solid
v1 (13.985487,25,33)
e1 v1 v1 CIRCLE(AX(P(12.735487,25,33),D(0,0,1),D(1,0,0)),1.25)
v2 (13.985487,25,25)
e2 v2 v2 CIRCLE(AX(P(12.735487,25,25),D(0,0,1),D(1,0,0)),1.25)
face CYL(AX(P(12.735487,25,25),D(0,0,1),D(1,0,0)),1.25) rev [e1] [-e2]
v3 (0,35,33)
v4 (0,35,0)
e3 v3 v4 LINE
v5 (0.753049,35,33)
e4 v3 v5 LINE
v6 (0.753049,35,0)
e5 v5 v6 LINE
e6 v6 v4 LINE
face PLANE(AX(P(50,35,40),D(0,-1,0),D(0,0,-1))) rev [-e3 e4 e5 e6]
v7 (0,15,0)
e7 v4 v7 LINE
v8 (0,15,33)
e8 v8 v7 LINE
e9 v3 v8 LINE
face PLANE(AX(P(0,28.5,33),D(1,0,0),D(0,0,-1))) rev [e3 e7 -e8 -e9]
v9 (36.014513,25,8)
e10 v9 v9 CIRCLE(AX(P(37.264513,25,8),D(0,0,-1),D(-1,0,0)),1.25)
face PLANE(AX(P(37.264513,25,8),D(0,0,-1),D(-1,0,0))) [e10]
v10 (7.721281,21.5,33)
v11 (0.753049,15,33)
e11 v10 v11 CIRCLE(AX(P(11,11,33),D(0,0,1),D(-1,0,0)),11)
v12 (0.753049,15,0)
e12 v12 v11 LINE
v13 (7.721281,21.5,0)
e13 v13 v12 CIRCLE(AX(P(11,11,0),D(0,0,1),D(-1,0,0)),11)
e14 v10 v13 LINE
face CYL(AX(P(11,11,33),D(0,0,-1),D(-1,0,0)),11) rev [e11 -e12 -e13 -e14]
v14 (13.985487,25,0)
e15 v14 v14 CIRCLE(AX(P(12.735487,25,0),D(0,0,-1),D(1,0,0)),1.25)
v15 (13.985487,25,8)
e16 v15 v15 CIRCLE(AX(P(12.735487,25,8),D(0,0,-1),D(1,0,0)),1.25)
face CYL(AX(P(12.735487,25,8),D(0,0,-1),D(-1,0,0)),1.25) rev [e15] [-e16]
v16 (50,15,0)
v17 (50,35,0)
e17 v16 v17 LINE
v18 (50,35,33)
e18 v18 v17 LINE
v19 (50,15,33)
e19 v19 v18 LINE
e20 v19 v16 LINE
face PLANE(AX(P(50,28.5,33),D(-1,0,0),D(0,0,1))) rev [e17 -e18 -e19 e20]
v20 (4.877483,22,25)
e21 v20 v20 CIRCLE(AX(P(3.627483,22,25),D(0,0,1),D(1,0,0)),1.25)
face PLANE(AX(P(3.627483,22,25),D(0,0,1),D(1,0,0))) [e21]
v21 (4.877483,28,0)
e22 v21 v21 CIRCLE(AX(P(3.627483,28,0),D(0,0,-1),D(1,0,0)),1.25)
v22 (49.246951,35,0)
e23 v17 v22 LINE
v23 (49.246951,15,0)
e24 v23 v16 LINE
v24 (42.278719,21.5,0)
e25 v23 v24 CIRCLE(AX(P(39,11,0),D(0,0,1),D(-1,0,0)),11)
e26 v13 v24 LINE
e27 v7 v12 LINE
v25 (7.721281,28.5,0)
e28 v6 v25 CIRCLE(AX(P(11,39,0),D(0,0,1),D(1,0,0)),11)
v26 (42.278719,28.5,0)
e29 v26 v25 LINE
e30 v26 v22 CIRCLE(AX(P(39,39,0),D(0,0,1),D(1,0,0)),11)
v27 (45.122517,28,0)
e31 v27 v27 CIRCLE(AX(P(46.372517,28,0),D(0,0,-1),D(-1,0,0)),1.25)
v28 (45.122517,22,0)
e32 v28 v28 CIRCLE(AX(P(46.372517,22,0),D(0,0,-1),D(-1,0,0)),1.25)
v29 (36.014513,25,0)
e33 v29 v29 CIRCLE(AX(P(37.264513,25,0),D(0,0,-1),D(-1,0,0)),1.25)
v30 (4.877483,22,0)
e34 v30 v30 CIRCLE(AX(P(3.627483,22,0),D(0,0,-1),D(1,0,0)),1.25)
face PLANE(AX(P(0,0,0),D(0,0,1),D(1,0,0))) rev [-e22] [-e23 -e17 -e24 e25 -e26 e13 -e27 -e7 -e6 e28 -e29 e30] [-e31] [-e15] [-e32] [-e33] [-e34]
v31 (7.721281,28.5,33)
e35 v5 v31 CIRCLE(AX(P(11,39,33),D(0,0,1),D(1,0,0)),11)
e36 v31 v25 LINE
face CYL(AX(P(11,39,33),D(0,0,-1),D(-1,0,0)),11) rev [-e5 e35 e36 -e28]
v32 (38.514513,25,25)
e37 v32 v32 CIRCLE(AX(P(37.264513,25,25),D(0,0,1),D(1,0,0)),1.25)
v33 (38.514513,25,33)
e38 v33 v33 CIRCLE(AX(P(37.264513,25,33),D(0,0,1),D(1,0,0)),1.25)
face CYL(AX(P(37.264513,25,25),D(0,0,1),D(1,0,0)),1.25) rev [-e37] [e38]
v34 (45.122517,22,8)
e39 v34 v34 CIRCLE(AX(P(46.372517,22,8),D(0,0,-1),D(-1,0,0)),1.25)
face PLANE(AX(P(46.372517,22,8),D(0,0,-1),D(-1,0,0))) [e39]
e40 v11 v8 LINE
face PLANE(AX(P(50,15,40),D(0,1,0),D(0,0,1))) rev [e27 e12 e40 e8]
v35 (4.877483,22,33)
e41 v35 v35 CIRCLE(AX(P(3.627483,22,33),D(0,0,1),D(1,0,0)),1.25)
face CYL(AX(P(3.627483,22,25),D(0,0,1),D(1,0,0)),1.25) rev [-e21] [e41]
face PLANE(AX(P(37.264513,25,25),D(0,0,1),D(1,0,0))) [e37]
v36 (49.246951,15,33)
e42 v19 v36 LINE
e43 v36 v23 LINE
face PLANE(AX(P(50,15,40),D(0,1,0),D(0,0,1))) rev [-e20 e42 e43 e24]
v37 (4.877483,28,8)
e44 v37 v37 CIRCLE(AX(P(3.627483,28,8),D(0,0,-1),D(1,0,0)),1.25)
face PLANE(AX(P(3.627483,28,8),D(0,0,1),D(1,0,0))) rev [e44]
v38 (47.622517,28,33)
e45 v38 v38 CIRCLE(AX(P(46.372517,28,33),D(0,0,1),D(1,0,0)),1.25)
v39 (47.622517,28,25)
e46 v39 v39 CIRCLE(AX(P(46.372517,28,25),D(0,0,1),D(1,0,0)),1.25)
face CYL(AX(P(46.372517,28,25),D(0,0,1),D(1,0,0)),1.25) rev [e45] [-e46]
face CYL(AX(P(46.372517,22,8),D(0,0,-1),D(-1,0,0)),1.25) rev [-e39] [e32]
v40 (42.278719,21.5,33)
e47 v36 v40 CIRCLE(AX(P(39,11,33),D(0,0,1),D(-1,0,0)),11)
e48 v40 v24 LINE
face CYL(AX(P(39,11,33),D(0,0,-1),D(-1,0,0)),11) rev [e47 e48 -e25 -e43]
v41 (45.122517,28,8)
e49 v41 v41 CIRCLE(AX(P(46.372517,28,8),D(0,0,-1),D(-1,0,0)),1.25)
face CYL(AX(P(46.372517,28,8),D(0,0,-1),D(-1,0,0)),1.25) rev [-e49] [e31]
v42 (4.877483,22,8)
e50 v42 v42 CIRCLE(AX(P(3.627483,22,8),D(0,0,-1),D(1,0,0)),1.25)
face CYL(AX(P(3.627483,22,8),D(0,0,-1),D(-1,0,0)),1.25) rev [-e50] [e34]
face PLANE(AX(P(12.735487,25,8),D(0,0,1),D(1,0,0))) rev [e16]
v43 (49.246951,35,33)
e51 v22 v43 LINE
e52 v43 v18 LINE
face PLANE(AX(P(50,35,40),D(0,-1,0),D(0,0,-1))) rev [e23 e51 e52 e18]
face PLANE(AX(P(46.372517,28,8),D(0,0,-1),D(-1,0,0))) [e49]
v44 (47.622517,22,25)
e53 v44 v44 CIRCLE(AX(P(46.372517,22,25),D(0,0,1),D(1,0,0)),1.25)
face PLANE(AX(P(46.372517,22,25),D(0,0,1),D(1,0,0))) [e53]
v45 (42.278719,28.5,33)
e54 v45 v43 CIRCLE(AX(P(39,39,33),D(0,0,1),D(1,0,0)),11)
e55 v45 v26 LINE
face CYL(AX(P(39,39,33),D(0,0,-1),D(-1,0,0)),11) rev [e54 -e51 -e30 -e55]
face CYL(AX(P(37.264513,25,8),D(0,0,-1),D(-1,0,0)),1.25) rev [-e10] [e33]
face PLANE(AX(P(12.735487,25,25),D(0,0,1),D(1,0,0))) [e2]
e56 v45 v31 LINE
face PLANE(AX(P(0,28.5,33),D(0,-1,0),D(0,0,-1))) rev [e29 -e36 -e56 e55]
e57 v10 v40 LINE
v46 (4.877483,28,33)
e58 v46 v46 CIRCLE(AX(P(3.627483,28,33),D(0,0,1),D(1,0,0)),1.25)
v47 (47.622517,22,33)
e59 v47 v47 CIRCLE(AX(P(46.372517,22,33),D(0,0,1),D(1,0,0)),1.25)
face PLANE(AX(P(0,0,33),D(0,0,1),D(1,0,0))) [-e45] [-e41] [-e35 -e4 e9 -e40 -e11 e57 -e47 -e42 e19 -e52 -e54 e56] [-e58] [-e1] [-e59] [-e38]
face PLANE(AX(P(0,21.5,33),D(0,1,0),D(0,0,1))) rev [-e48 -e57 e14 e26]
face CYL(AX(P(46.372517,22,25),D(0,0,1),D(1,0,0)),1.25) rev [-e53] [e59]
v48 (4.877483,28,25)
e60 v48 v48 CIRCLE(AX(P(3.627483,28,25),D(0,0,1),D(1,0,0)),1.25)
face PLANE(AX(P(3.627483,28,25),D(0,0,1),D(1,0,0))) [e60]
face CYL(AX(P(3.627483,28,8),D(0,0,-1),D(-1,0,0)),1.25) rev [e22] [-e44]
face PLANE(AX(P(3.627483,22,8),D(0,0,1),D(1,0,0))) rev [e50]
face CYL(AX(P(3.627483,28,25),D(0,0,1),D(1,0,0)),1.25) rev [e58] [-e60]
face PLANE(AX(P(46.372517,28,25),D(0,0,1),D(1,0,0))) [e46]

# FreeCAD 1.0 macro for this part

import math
import FreeCAD as App
import Part
import Sketcher

V = App.Vector
Q = App.Units.Quantity


def add_polygon(sketch, points):
    """Adds a closed chain of lines whose ends are joined by coincident constraints."""
    first, n = sketch.GeometryCount, len(points)
    for a, b in zip(points, points[1:] + points[:1]):
        sketch.addGeometry(Part.LineSegment(App.Vector(*a, 0), App.Vector(*b, 0)), False)
    for i in range(n):
        sketch.addConstraint(Sketcher.Constraint("Coincident", first + i, 2, first + (i + 1) % n, 1))

doc = App.newDocument("Part")
body = doc.addObject("PartDesign::Body", "Body")

# Sketch on XY plane
sketch1 = body.newObject("Sketcher::SketchObject", "Sketch")
sketch1.AttachmentSupport = (doc.getObject("XY_Plane"), [""])
sketch1.MapMode = "FlatFace"
add_polygon(sketch1, [(0, 28), (0, 22), (50, 22), (50, 28)])  # lines 0-3
sketch1.addConstraint(Sketcher.Constraint("Vertical", 0))
sketch1.addConstraint(Sketcher.Constraint("Horizontal", 1))
sketch1.addConstraint(Sketcher.Constraint("Vertical", 2))
sketch1.addConstraint(Sketcher.Constraint("Horizontal", 3))
sketch1.addConstraint(Sketcher.Constraint("PointOnObject", 0, 2, -2))
sketch1.addConstraint(Sketcher.Constraint("DistanceX", 1, 1, 1, 2, Q("50 mm")))
sketch1.addConstraint(Sketcher.Constraint("DistanceY", 0, 2, 0, 1, Q("7 mm")))
sketch1.addConstraint(Sketcher.Constraint("DistanceY", -1, 1, 0, 2, Q("21.5 mm")))
pad1 = body.newObject("PartDesign::Pad", "Pad")
pad1.Profile = sketch1
pad1.Length = 33

# Sketch on XY plane
sketch2 = body.newObject("Sketcher::SketchObject", "Sketch001")
sketch2.AttachmentSupport = (doc.getObject("XY_Plane"), [""])
sketch2.MapMode = "FlatFace"
sketch2.addGeometry(Part.LineSegment(V(50, 22, 0), V(50, 11, 0)), False)
sketch2.addGeometry(Part.ArcOfCircle(Part.Circle(V(39, 11, 0), V(0, 0, 1), 11), math.radians(0), math.radians(73)), False)
sketch2.addGeometry(Part.LineSegment(V(42, 22, 0), V(50, 22, 0)), False)
sketch2.addGeometry(Part.LineSegment(V(0, 22, 0), V(8, 22, 0)), False)
sketch2.addGeometry(Part.ArcOfCircle(Part.Circle(V(11, 11, 0), V(0, 0, 1), 11), math.radians(107), math.radians(180)), False)
sketch2.addGeometry(Part.LineSegment(V(0, 11, 0), V(0, 22, 0)), False)
sketch2.addGeometry(Part.LineSegment(V(0, 28, 0), V(0, 39, 0)), False)
sketch2.addGeometry(Part.ArcOfCircle(Part.Circle(V(11, 39, 0), V(0, 0, 1), 11), math.radians(180), math.radians(253)), False)
sketch2.addGeometry(Part.LineSegment(V(8, 28, 0), V(0, 28, 0)), False)
sketch2.addGeometry(Part.LineSegment(V(50, 28, 0), V(42, 28, 0)), False)
sketch2.addGeometry(Part.ArcOfCircle(Part.Circle(V(39, 39, 0), V(0, 0, 1), 11), math.radians(-73), math.radians(0)), False)
sketch2.addGeometry(Part.LineSegment(V(50, 39, 0), V(50, 28, 0)), False)
sketch2.addConstraint(Sketcher.Constraint("Tangent", 0, 2, 1, 1))
sketch2.addConstraint(Sketcher.Constraint("Coincident", 1, 2, 2, 1))
sketch2.addConstraint(Sketcher.Constraint("Coincident", 2, 2, 0, 1))
sketch2.addConstraint(Sketcher.Constraint("Coincident", 3, 2, 4, 1))
sketch2.addConstraint(Sketcher.Constraint("Tangent", 4, 2, 5, 1))
sketch2.addConstraint(Sketcher.Constraint("Coincident", 5, 2, 3, 1))
sketch2.addConstraint(Sketcher.Constraint("Tangent", 6, 2, 7, 1))
sketch2.addConstraint(Sketcher.Constraint("Coincident", 7, 2, 8, 1))
sketch2.addConstraint(Sketcher.Constraint("Coincident", 8, 2, 6, 1))
sketch2.addConstraint(Sketcher.Constraint("Coincident", 9, 2, 10, 1))
sketch2.addConstraint(Sketcher.Constraint("Tangent", 10, 2, 11, 1))
sketch2.addConstraint(Sketcher.Constraint("Coincident", 11, 2, 9, 1))
sketch2.addConstraint(Sketcher.Constraint("Vertical", 0))
sketch2.addConstraint(Sketcher.Constraint("Horizontal", 2))
sketch2.addConstraint(Sketcher.Constraint("Horizontal", 3))
sketch2.addConstraint(Sketcher.Constraint("Vertical", 5))
sketch2.addConstraint(Sketcher.Constraint("Vertical", 6))
sketch2.addConstraint(Sketcher.Constraint("Horizontal", 8))
sketch2.addConstraint(Sketcher.Constraint("Horizontal", 9))
sketch2.addConstraint(Sketcher.Constraint("Vertical", 11))
sketch2.addConstraint(Sketcher.Constraint("Equal", 1, 4))
sketch2.addConstraint(Sketcher.Constraint("Equal", 4, 7))
sketch2.addConstraint(Sketcher.Constraint("Equal", 7, 10))
sketch2.addConstraint(Sketcher.Constraint("PointOnObject", 4, 2, -2))
sketch2.addConstraint(Sketcher.Constraint("PointOnObject", 6, 2, -2))
sketch2.addConstraint(Sketcher.Constraint("Horizontal", 1, 3, 4, 3))
sketch2.addConstraint(Sketcher.Constraint("Horizontal", 7, 3, 10, 3))
sketch2.addConstraint(Sketcher.Constraint("Horizontal", 2, 2, 3, 2))
sketch2.addConstraint(Sketcher.Constraint("Horizontal", 8, 2, 9, 2))
sketch2.addConstraint(Sketcher.Constraint("Vertical", 1, 3, 10, 3))
sketch2.addConstraint(Sketcher.Constraint("Vertical", 3, 2, 7, 2))
sketch2.addConstraint(Sketcher.Constraint("Radius", 1, Q("11 mm")))
sketch2.addConstraint(Sketcher.Constraint("DistanceY", 0, 2, 0, 1, Q("10.5 mm")))
sketch2.addConstraint(Sketcher.Constraint("DistanceX", -1, 1, 1, 3, Q("39 mm")))
sketch2.addConstraint(Sketcher.Constraint("DistanceY", -1, 1, 1, 3, Q("11 mm")))
sketch2.addConstraint(Sketcher.Constraint("DistanceY", -1, 1, 7, 3, Q("39 mm")))
pad2 = body.newObject("PartDesign::Pad", "Pad001")
pad2.Profile = sketch2
pad2.Length = 33

# Sketch on XY plane
sketch3 = body.newObject("Sketcher::SketchObject", "Sketch002")
sketch3.AttachmentSupport = (doc.getObject("XY_Plane"), [""])
sketch3.MapMode = "FlatFace"
sketch3.addGeometry(Part.Circle(V(46.4, 28, 0), V(0, 0, 1), 1.2), False)
sketch3.addGeometry(Part.Circle(V(46.4, 22, 0), V(0, 0, 1), 1.2), False)
sketch3.addGeometry(Part.Circle(V(37.3, 25, 0), V(0, 0, 1), 1.2), False)
sketch3.addGeometry(Part.Circle(V(3.6, 22, 0), V(0, 0, 1), 1.2), False)
sketch3.addGeometry(Part.Circle(V(3.6, 28, 0), V(0, 0, 1), 1.2), False)
sketch3.addGeometry(Part.Circle(V(12.7, 25, 0), V(0, 0, 1), 1.2), False)
sketch3.addConstraint(Sketcher.Constraint("Equal", 0, 1))
sketch3.addConstraint(Sketcher.Constraint("Equal", 1, 2))
sketch3.addConstraint(Sketcher.Constraint("Equal", 2, 3))
sketch3.addConstraint(Sketcher.Constraint("Equal", 3, 4))
sketch3.addConstraint(Sketcher.Constraint("Equal", 4, 5))
sketch3.addConstraint(Sketcher.Constraint("Horizontal", 1, 3, 3, 3))
sketch3.addConstraint(Sketcher.Constraint("Horizontal", 0, 3, 4, 3))
sketch3.addConstraint(Sketcher.Constraint("Horizontal", 2, 3, 5, 3))
sketch3.addConstraint(Sketcher.Constraint("Vertical", 0, 3, 1, 3))
sketch3.addConstraint(Sketcher.Constraint("Vertical", 3, 3, 4, 3))
sketch3.addConstraint(Sketcher.Constraint("Diameter", 0, Q("2.5 mm")))
sketch3.addConstraint(Sketcher.Constraint("DistanceY", -1, 1, 0, 3, Q("28 mm")))
sketch3.addConstraint(Sketcher.Constraint("DistanceY", -1, 1, 1, 3, Q("22 mm")))
sketch3.addConstraint(Sketcher.Constraint("DistanceY", -1, 1, 2, 3, Q("25 mm")))
sketch3.addConstraint(Sketcher.Constraint("DistanceX", 3, 3, 2, 3, Q("33.63703 mm")))
sketch3.addConstraint(Sketcher.Constraint("DistanceX", 5, 3, 0, 3, Q("33.63703 mm")))
sketch3.addConstraint(Sketcher.Constraint("DistanceX", -1, 1, 0, 3, Q("46.372517 mm")))
sketch3.addConstraint(Sketcher.Constraint("DistanceX", -1, 1, 2, 3, Q("37.264513 mm")))
pocket1 = body.newObject("PartDesign::Pocket", "Pocket")
pocket1.Profile = sketch3
pocket1.Length = 8
pocket1.Reversed = True

# Sketch on XY plane
sketch4 = body.newObject("Sketcher::SketchObject", "Sketch003")
sketch4.AttachmentSupport = (doc.getObject("XY_Plane"), [""])
sketch4.MapMode = "FlatFace"
add_polygon(sketch4, [(50, 39), (50, 35), (0, 35), (0, 39)])  # lines 0-3
add_polygon(sketch4, [(50, 15), (50, 11), (0, 11), (0, 15)])  # lines 4-7
sketch4.addConstraint(Sketcher.Constraint("Vertical", 0))
sketch4.addConstraint(Sketcher.Constraint("Horizontal", 1))
sketch4.addConstraint(Sketcher.Constraint("Vertical", 2))
sketch4.addConstraint(Sketcher.Constraint("Horizontal", 3))
sketch4.addConstraint(Sketcher.Constraint("Vertical", 4))
sketch4.addConstraint(Sketcher.Constraint("Horizontal", 5))
sketch4.addConstraint(Sketcher.Constraint("Vertical", 6))
sketch4.addConstraint(Sketcher.Constraint("Horizontal", 7))
sketch4.addConstraint(Sketcher.Constraint("PointOnObject", 1, 2, -2))
sketch4.addConstraint(Sketcher.Constraint("PointOnObject", 5, 2, -2))
sketch4.addConstraint(Sketcher.Constraint("Vertical", 3, 2, 4, 2))
sketch4.addConstraint(Sketcher.Constraint("Equal", 2, 4))
sketch4.addConstraint(Sketcher.Constraint("DistanceX", 1, 2, 1, 1, Q("50 mm")))
sketch4.addConstraint(Sketcher.Constraint("DistanceY", 0, 2, 0, 1, Q("4 mm")))
sketch4.addConstraint(Sketcher.Constraint("DistanceY", -1, 1, 0, 2, Q("35 mm")))
sketch4.addConstraint(Sketcher.Constraint("DistanceY", -1, 1, 4, 2, Q("11 mm")))
pocket2 = body.newObject("PartDesign::Pocket", "Pocket001")
pocket2.Profile = sketch4
pocket2.Length = 40
pocket2.Reversed = True

# Sketch on XY plane
sketch5 = body.newObject("Sketcher::SketchObject", "Sketch004")
sketch5.AttachmentSupport = (doc.getObject("XY_Plane"), [""])
sketch5.MapMode = "FlatFace"
sketch5.AttachmentOffset = App.Placement(V(0, 0, 25), App.Rotation())
sketch5.addGeometry(Part.Circle(V(3.6, 28, 0), V(0, 0, 1), 1.2), False)
sketch5.addGeometry(Part.Circle(V(3.6, 22, 0), V(0, 0, 1), 1.2), False)
sketch5.addGeometry(Part.Circle(V(12.7, 25, 0), V(0, 0, 1), 1.2), False)
sketch5.addGeometry(Part.Circle(V(46.4, 22, 0), V(0, 0, 1), 1.2), False)
sketch5.addGeometry(Part.Circle(V(46.4, 28, 0), V(0, 0, 1), 1.2), False)
sketch5.addGeometry(Part.Circle(V(37.3, 25, 0), V(0, 0, 1), 1.2), False)
sketch5.addConstraint(Sketcher.Constraint("Equal", 0, 1))
sketch5.addConstraint(Sketcher.Constraint("Equal", 1, 2))
sketch5.addConstraint(Sketcher.Constraint("Equal", 2, 3))
sketch5.addConstraint(Sketcher.Constraint("Equal", 3, 4))
sketch5.addConstraint(Sketcher.Constraint("Equal", 4, 5))
sketch5.addConstraint(Sketcher.Constraint("Horizontal", 1, 3, 3, 3))
sketch5.addConstraint(Sketcher.Constraint("Horizontal", 0, 3, 4, 3))
sketch5.addConstraint(Sketcher.Constraint("Horizontal", 2, 3, 5, 3))
sketch5.addConstraint(Sketcher.Constraint("Vertical", 0, 3, 1, 3))
sketch5.addConstraint(Sketcher.Constraint("Vertical", 3, 3, 4, 3))
sketch5.addConstraint(Sketcher.Constraint("Diameter", 0, Q("2.5 mm")))
sketch5.addConstraint(Sketcher.Constraint("DistanceY", -1, 1, 0, 3, Q("28 mm")))
sketch5.addConstraint(Sketcher.Constraint("DistanceY", -1, 1, 1, 3, Q("22 mm")))
sketch5.addConstraint(Sketcher.Constraint("DistanceY", -1, 1, 2, 3, Q("25 mm")))
sketch5.addConstraint(Sketcher.Constraint("DistanceX", 2, 3, 3, 3, Q("33.63703 mm")))
sketch5.addConstraint(Sketcher.Constraint("DistanceX", 0, 3, 5, 3, Q("33.63703 mm")))
sketch5.addConstraint(Sketcher.Constraint("DistanceX", -1, 1, 0, 3, Q("3.627483 mm")))
sketch5.addConstraint(Sketcher.Constraint("DistanceX", -1, 1, 2, 3, Q("12.735487 mm")))
pocket3 = body.newObject("PartDesign::Pocket", "Pocket002")
pocket3.Profile = sketch5
pocket3.Length = 8
pocket3.Reversed = True

doc.recompute()
